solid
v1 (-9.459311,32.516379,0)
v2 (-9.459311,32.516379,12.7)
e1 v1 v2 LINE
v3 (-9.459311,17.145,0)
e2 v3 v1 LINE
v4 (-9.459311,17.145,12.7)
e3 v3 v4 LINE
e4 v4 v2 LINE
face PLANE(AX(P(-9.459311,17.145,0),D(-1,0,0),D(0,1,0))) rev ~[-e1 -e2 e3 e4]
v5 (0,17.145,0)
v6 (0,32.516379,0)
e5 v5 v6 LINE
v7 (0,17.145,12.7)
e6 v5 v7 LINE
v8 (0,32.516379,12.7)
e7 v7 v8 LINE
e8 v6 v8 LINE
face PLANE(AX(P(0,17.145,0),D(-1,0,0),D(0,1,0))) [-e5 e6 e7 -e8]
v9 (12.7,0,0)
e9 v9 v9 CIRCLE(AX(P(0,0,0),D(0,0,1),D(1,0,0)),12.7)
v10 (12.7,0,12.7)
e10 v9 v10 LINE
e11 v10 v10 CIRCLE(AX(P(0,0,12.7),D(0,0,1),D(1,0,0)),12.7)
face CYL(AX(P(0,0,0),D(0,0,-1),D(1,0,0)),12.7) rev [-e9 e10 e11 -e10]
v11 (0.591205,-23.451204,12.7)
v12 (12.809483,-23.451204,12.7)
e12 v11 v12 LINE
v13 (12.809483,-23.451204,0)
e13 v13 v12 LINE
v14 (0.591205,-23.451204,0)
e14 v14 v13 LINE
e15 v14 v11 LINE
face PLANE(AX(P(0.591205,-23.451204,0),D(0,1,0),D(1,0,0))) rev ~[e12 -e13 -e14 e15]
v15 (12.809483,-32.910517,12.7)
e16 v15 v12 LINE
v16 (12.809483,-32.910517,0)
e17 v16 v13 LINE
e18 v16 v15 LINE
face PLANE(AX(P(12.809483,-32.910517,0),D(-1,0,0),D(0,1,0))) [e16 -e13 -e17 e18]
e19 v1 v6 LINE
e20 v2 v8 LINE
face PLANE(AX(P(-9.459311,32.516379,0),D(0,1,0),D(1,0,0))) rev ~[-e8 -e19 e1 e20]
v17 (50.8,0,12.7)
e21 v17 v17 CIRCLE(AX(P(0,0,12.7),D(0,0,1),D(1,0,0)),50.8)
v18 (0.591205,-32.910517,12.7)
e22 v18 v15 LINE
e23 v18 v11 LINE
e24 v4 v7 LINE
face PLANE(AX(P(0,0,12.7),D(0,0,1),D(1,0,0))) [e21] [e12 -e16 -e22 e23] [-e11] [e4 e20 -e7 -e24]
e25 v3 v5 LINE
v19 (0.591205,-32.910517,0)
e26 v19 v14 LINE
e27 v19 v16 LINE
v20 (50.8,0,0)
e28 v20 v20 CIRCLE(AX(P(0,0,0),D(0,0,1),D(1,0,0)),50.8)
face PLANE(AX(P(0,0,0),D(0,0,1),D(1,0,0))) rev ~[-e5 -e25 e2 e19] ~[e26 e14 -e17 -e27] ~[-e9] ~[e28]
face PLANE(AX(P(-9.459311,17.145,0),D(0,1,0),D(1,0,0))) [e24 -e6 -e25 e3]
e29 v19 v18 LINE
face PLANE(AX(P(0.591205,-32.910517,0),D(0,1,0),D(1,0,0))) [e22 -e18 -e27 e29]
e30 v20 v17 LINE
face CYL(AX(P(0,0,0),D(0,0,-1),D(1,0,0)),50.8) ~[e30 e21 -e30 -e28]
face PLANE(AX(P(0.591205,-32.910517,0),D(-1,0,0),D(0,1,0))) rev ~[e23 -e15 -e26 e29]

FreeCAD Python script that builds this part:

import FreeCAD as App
import Part
import Sketcher
from FreeCAD import Vector
Q = App.Units.Quantity


def add_polygon(sketch, points):
    """Adds a closed chain of lines whose ends are joined by coincident constraints."""
    first, n = sketch.GeometryCount, len(points)
    for a, b in zip(points, points[1:] + points[:1]):
        sketch.addGeometry(Part.LineSegment(App.Vector(*a, 0), App.Vector(*b, 0)), False)
    for i in range(n):
        sketch.addConstraint(Sketcher.Constraint("Coincident", first + i, 2, first + (i + 1) % n, 1))

doc = App.newDocument("Part")
body = doc.addObject("PartDesign::Body", "Body")

# Sketch on XY plane
sketch1 = doc.addObject("Sketcher::SketchObject", "Sketch")
body.addObject(sketch1)
sketch1.AttachmentSupport = (doc.XY_Plane, [""])
sketch1.MapMode = "FlatFace"
sketch1.addGeometry(Part.Circle(Vector(0, 0, 0), Vector(0, 0, 1), 51), False)  # 0
add_polygon(sketch1, [(13, -33), (1, -33), (1, -23), (13, -23)])  # lines 1-4
sketch1.addGeometry(Part.Circle(Vector(0, 0, 0), Vector(0, 0, 1), 13), False)  # 5
add_polygon(sketch1, [(0, 17), (-9, 17), (-9, 33), (0, 33)])  # lines 6-9
sketch1.addConstraint(Sketcher.Constraint("Horizontal", 1))
sketch1.addConstraint(Sketcher.Constraint("Vertical", 2))
sketch1.addConstraint(Sketcher.Constraint("Horizontal", 3))
sketch1.addConstraint(Sketcher.Constraint("Vertical", 4))
sketch1.addConstraint(Sketcher.Constraint("Horizontal", 6))
sketch1.addConstraint(Sketcher.Constraint("Vertical", 7))
sketch1.addConstraint(Sketcher.Constraint("Horizontal", 8))
sketch1.addConstraint(Sketcher.Constraint("Vertical", 9))
sketch1.addConstraint(Sketcher.Constraint("Coincident", 0, 3, -1, 1))
sketch1.addConstraint(Sketcher.Constraint("Coincident", 5, 3, -1, 1))
sketch1.addConstraint(Sketcher.Constraint("PointOnObject", 8, 2, -2))
sketch1.addConstraint(Sketcher.Constraint("Equal", 8, 2))
sketch1.addConstraint(Sketcher.Constraint("Diameter", 0, Q("4 in")))
sketch1.addConstraint(Sketcher.Constraint("Diameter", 5, Q("1 in")))
sketch1.addConstraint(Sketcher.Constraint("DistanceY", -1, 1, 6, 2, Q("0.675 in")))
sketch1.addConstraint(Sketcher.Constraint("DistanceX", 6, 2, 6, 1, Q("9.459311 mm")))
sketch1.addConstraint(Sketcher.Constraint("DistanceY", 7, 1, 7, 2, Q("15.371379 mm")))
sketch1.addConstraint(Sketcher.Constraint("DistanceX", 1, 2, 1, 1, Q("12.218278 mm")))
sketch1.addConstraint(Sketcher.Constraint("DistanceX", -1, 1, 1, 2, Q("0.591205 mm")))
sketch1.addConstraint(Sketcher.Constraint("DistanceY", 1, 2, -1, 1, Q("32.910517 mm")))
pad1 = doc.addObject("PartDesign::Pad", "Pad")
body.addObject(pad1)
pad1.Profile = sketch1
pad1.Length = Q("0.5 in")

doc.recompute()
